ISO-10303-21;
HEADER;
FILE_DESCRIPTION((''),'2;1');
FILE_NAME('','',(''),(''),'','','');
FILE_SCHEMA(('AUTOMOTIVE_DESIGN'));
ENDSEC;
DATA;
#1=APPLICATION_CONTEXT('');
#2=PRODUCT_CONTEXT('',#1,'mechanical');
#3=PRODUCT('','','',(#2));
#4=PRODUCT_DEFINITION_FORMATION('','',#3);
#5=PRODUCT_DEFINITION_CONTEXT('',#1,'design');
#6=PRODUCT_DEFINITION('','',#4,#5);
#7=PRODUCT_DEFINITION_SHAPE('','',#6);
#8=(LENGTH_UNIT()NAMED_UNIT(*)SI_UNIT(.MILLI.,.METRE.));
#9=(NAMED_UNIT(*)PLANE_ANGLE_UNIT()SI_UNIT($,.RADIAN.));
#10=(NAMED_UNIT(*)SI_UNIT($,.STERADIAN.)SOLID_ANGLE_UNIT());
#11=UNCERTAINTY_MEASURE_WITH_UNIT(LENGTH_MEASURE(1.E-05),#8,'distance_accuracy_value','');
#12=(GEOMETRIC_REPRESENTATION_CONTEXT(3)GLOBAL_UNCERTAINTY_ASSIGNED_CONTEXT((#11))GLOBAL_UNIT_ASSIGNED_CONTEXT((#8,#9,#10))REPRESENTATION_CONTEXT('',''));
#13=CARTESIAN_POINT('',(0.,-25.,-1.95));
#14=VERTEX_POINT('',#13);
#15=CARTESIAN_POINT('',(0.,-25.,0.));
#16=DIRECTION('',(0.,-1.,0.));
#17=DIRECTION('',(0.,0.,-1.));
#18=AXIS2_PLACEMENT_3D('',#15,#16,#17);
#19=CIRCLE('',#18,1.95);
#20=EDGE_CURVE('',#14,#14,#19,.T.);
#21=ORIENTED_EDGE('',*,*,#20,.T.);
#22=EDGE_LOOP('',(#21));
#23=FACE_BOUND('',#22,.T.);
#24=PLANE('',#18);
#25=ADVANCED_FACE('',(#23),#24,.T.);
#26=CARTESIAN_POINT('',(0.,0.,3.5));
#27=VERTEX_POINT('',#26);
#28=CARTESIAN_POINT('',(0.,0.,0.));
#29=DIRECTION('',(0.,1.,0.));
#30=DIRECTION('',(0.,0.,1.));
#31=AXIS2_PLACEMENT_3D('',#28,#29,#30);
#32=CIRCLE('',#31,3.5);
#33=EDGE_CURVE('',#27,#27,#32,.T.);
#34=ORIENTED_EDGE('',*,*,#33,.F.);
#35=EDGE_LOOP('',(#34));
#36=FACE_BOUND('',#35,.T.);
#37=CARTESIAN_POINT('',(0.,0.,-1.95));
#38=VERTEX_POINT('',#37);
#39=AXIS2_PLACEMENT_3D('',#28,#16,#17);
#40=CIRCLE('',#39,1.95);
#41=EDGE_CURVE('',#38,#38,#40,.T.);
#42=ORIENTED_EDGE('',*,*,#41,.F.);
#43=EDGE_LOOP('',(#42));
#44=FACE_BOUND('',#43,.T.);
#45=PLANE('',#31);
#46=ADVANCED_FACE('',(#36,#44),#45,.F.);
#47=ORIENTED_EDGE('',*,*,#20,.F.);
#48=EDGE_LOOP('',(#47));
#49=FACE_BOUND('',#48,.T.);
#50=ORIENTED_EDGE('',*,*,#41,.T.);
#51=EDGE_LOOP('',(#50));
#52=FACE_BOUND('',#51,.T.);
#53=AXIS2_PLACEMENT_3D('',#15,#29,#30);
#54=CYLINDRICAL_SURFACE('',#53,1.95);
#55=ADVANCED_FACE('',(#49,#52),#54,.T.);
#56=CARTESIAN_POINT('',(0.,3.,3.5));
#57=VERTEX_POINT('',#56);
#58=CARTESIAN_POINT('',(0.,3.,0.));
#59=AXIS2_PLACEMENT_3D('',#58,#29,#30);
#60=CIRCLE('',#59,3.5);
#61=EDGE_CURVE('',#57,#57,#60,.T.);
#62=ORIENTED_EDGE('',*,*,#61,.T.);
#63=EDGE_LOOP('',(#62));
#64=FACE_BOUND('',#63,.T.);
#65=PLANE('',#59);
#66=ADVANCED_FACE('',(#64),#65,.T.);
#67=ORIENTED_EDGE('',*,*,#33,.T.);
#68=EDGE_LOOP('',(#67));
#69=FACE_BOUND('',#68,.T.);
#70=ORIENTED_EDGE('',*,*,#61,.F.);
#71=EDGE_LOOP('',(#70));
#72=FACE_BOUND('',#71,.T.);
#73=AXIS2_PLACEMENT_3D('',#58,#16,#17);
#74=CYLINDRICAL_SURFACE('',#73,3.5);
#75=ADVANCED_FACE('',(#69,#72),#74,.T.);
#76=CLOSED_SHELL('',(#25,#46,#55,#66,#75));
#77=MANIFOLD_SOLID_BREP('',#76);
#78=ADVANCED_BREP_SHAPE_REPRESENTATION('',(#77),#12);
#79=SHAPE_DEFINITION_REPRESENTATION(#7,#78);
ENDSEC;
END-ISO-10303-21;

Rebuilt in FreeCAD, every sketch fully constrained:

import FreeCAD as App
import Part
import Sketcher
from FreeCAD import Vector

doc = App.newDocument("Part")
params = doc.addObject("Spreadsheet::Sheet", "Params")
for row, (alias, value) in enumerate([
    ("sketch1_diameter", "7 mm"),
    ("pad1_length", "3 mm"),
    ("sketch2_diameter", "3.9 mm"),
    ("pad2_length", "25 mm"),
], start=1):
    params.set(f"A{row}", alias)
    params.set(f"B{row}", "=" + value)
    params.setAlias(f"B{row}", alias)

body = doc.addObject("PartDesign::Body", "Body")

# Sketch on XZ plane
sketch1 = body.newObject("Sketcher::SketchObject", "Sketch")
sketch1.AttachmentSupport = (doc.getObject("XZ_Plane"), [""])
sketch1.MapMode = "FlatFace"
sketch1.addGeometry(Part.Circle(Vector(0, 0, 0), Vector(0, 0, 1), 3.5), False)
sketch1.addConstraint(Sketcher.Constraint("Coincident", 0, 3, -1, 1))
sketch1.addConstraint(Sketcher.Constraint("Diameter", 0, 7.0))
sketch1.setExpression("Constraints[1]", "Params.sketch1_diameter")
pad1 = body.newObject("PartDesign::Pad", "Pad")
pad1.Profile = sketch1
pad1.setExpression("Length", "Params.pad1_length")
pad1.Reversed = True

# Sketch on XZ plane
sketch2 = body.newObject("Sketcher::SketchObject", "Sketch001")
sketch2.AttachmentSupport = (doc.getObject("XZ_Plane"), [""])
sketch2.MapMode = "FlatFace"
sketch2.addGeometry(Part.Circle(Vector(0, 0, 0), Vector(0, 0, 1), 1.9), False)
sketch2.addConstraint(Sketcher.Constraint("Coincident", 0, 3, -1, 1))
sketch2.addConstraint(Sketcher.Constraint("Diameter", 0, 3.9))
sketch2.setExpression("Constraints[1]", "Params.sketch2_diameter")
pad2 = body.newObject("PartDesign::Pad", "Pad001")
pad2.Profile = sketch2
pad2.setExpression("Length", "Params.pad2_length")

doc.recompute()
